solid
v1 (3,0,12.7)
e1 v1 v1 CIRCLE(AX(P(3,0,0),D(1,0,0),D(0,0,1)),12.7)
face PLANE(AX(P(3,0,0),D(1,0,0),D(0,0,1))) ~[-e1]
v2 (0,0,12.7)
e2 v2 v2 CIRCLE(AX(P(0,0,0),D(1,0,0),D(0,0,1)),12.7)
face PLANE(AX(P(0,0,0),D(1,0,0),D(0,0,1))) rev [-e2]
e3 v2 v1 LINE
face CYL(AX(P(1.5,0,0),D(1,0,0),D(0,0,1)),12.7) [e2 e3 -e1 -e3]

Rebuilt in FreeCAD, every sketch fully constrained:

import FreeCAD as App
import Part
import Sketcher
from FreeCAD import Vector

doc = App.newDocument("Part")
body = doc.addObject("PartDesign::Body", "Body")

# Sketch on XY plane
sketch1 = body.newObject("Sketcher::SketchObject", "Sketch")
sketch1.AttachmentSupport = (doc.getObject("XY_Plane"), [""])
sketch1.MapMode = "FlatFace"
sketch1.addGeometry([
    Part.LineSegment(Vector(0, 12.7, 0), Vector(0, 0, 0)),
    Part.LineSegment(Vector(0, 0, 0), Vector(3, 0, 0)),
    Part.LineSegment(Vector(3, 0, 0), Vector(3, 12.7, 0)),
    Part.LineSegment(Vector(3, 12.7, 0), Vector(0, 12.7, 0)),
], False)
sketch1.addConstraint([
    Sketcher.Constraint("Coincident", 0, 2, 1, 1),
    Sketcher.Constraint("Coincident", 1, 2, 2, 1),
    Sketcher.Constraint("Coincident", 2, 2, 3, 1),
    Sketcher.Constraint("Coincident", 3, 2, 0, 1),
    Sketcher.Constraint("Vertical", 0),
    Sketcher.Constraint("Horizontal", 1),
    Sketcher.Constraint("Vertical", 2),
    Sketcher.Constraint("Horizontal", 3),
    Sketcher.Constraint("Coincident", 0, 2, -1, 1),
    Sketcher.Constraint("DistanceX", 1, 1, 1, 2, 3.0),
    Sketcher.Constraint("DistanceY", 0, 2, 0, 1, 12.7),
])
revolution = body.newObject("PartDesign::Revolution", "Revolution")
revolution.Profile = sketch1
revolution.ReferenceAxis = (sketch1, ["H_Axis"])
revolution.Angle = 360

doc.recompute()
